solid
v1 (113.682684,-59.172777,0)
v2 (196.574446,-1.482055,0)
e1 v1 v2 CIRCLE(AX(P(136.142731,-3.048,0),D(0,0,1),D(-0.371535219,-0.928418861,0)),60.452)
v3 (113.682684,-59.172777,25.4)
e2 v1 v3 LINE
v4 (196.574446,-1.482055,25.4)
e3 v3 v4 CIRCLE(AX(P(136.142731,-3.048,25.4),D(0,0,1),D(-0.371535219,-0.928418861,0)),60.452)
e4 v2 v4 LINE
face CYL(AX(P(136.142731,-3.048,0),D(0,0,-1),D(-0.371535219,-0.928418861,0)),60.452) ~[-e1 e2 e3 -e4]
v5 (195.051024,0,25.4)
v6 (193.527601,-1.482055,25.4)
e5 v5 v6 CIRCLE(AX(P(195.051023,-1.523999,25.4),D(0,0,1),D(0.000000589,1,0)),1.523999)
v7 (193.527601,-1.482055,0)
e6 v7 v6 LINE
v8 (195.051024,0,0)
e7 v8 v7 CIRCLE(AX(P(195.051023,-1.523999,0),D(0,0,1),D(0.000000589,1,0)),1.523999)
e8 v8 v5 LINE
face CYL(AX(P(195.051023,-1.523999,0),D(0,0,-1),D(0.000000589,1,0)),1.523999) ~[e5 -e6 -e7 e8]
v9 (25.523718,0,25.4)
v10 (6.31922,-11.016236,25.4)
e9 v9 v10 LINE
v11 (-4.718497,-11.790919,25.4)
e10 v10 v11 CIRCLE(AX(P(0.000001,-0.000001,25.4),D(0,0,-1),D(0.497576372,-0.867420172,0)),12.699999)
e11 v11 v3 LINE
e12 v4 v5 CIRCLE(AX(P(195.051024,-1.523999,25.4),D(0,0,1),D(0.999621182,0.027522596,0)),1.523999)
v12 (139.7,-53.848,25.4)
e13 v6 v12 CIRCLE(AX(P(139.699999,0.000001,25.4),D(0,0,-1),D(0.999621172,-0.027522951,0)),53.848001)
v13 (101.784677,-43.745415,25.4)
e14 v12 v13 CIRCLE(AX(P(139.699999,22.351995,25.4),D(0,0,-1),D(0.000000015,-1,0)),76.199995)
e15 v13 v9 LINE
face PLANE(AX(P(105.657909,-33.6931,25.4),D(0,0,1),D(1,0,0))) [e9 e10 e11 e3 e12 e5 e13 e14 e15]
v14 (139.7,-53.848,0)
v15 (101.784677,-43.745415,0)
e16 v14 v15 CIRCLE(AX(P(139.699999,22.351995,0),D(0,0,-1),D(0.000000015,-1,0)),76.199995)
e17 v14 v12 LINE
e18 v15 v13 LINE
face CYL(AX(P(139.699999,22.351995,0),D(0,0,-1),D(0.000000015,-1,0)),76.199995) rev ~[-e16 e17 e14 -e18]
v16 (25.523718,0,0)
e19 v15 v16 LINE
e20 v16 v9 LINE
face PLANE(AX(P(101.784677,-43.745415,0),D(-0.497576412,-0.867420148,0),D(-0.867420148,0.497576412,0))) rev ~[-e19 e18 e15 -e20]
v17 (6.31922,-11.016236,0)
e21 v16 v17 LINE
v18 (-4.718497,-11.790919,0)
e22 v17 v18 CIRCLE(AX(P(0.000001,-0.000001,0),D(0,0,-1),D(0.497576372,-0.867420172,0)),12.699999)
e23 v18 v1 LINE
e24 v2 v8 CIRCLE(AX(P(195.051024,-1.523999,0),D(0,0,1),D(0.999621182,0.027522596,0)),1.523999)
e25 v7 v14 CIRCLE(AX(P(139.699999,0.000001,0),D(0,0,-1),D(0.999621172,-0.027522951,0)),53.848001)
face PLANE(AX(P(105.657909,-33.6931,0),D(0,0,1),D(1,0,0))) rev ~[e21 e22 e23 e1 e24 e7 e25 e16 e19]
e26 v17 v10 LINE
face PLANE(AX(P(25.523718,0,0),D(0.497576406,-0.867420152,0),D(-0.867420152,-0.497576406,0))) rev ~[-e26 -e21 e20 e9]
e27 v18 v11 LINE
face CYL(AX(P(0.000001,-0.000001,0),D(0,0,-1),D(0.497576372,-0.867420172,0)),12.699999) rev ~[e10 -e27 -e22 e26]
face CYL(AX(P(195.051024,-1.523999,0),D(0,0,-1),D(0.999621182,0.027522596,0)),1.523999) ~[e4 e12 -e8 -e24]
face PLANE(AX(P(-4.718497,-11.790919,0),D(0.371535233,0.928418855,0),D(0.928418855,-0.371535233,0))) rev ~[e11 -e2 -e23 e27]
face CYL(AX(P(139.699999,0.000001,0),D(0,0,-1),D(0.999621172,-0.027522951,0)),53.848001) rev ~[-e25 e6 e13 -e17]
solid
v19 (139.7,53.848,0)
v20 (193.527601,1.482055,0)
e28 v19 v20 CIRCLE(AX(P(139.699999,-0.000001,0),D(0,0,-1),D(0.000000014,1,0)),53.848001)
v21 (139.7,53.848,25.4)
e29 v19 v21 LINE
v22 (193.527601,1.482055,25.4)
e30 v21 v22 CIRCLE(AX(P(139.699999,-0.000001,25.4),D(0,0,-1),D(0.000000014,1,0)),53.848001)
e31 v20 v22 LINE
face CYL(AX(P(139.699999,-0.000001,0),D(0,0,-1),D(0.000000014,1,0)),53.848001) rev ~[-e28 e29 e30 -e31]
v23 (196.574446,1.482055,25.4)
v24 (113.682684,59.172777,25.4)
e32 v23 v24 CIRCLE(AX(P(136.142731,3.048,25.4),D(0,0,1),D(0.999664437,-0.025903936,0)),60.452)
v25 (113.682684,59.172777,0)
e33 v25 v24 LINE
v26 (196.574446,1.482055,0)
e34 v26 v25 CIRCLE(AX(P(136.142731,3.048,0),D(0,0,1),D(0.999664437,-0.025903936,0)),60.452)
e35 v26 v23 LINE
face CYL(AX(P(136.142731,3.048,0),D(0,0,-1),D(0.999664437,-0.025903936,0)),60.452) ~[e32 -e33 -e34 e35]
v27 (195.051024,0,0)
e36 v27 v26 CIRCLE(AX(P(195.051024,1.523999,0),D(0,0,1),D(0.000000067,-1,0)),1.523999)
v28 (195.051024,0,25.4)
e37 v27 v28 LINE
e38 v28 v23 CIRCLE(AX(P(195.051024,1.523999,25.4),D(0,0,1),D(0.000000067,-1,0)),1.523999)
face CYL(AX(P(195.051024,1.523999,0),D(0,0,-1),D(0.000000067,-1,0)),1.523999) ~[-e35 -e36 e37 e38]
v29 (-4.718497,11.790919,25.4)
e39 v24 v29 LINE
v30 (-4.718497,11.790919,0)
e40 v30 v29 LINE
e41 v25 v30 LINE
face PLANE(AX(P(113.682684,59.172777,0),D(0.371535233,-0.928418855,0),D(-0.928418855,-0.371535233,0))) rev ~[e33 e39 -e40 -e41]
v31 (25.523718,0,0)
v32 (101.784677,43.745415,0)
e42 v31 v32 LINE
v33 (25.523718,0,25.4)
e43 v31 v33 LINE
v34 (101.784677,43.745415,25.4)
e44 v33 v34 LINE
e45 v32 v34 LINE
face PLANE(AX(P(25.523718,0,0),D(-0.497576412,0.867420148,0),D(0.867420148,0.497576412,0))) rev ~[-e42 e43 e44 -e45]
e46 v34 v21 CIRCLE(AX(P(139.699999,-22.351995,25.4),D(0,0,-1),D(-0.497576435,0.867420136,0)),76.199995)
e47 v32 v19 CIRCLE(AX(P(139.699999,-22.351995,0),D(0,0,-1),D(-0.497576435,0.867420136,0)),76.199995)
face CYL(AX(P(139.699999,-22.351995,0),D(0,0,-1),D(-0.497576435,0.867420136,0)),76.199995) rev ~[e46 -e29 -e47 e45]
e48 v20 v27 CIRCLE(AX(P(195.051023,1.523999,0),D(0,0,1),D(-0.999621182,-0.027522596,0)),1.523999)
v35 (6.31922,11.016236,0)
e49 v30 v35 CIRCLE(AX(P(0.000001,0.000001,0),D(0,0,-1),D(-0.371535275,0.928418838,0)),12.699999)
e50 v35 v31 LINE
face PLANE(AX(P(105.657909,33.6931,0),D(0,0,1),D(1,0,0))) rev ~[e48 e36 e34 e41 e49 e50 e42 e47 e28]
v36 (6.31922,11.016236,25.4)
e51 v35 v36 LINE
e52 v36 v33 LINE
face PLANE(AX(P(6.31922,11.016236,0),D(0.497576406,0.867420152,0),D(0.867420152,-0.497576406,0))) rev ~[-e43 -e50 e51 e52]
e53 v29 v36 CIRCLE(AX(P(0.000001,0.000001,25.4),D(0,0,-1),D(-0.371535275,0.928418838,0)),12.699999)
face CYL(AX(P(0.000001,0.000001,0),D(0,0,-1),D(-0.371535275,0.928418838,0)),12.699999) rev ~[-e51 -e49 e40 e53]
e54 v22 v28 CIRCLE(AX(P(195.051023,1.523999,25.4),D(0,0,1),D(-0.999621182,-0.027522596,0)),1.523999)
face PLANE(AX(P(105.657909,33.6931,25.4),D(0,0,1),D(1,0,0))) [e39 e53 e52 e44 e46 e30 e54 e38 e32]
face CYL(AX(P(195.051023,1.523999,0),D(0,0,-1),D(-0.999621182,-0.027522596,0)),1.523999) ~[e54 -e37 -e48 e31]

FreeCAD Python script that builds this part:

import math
import FreeCAD as App
import Part
import Sketcher
from FreeCAD import Vector
Q = App.Units.Quantity

doc = App.newDocument("Part")
body = doc.addObject("PartDesign::Body", "Body")
body.AllowCompound = True

# Sketch on XY plane
sketch1 = body.newObject("Sketcher::SketchObject", "Sketch")
sketch1.AttachmentSupport = (doc.getObject("XY_Plane"), [""])
sketch1.MapMode = "FlatFace"
sketch1.addGeometry([
    Part.ArcOfCircle(Part.Circle(Vector(0, 0, 0), Vector(0, 0, 1), 12.7), math.radians(60), math.radians(112)),  # 0
    Part.LineSegment(Vector(6.3, 11, 0), Vector(25.5, 0, 0)),  # 1
    Part.LineSegment(Vector(25.5, 0, 0), Vector(101.8, 43.7, 0)),  # 2
    Part.ArcOfCircle(Part.Circle(Vector(139.7, -22.4, 0), Vector(0, 0, 1), 76.2), math.radians(90), math.radians(120)),  # 3
    Part.ArcOfCircle(Part.Circle(Vector(139.7, 0, 0), Vector(0, 0, 1), 53.8), math.radians(2), math.radians(90)),  # 4
    Part.ArcOfCircle(Part.Circle(Vector(195.1, 1.5, 0), Vector(0, 0, 1), 1.5), math.radians(-178), math.radians(-90)),  # 5
    Part.ArcOfCircle(Part.Circle(Vector(195.1, 1.5, 0), Vector(0, 0, 1), 1.5), math.radians(-90), math.radians(-2)),  # 6
    Part.ArcOfCircle(Part.Circle(Vector(136.1, 3, 0), Vector(0, 0, 1), 60.5), math.radians(-1), math.radians(112)),  # 7
    Part.LineSegment(Vector(113.7, 59.2, 0), Vector(-4.7, 11.8, 0)),  # 8
    Part.LineSegment(Vector(25.5, 0, 0), Vector(6.3, -11, 0)),  # 9
    Part.ArcOfCircle(Part.Circle(Vector(0, 0, 0), Vector(0, 0, 1), 12.7), math.radians(-112), math.radians(-60)),  # 10
    Part.LineSegment(Vector(-4.7, -11.8, 0), Vector(113.7, -59.2, 0)),  # 11
    Part.ArcOfCircle(Part.Circle(Vector(136.1, -3, 0), Vector(0, 0, 1), 60.5), math.radians(-112), math.radians(1)),  # 12
    Part.ArcOfCircle(Part.Circle(Vector(195.1, -1.5, 0), Vector(0, 0, 1), 1.5), math.radians(2), math.radians(90)),  # 13
    Part.ArcOfCircle(Part.Circle(Vector(195.1, -1.5, 0), Vector(0, 0, 1), 1.5), math.radians(90), math.radians(178)),  # 14
    Part.ArcOfCircle(Part.Circle(Vector(139.7, 0, 0), Vector(0, 0, 1), 53.8), math.radians(-90), math.radians(-2)),  # 15
    Part.ArcOfCircle(Part.Circle(Vector(139.7, 22.4, 0), Vector(0, 0, 1), 76.2), math.radians(-120), math.radians(-90)),  # 16
    Part.LineSegment(Vector(101.8, -43.7, 0), Vector(25.5, 0, 0)),  # 17
], False)
sketch1.addConstraint([
    Sketcher.Constraint("Tangent", 0, 1, 1, 1),
    Sketcher.Constraint("Coincident", 1, 2, 2, 1),
    Sketcher.Constraint("Tangent", 2, 2, 3, 2),
    Sketcher.Constraint("Tangent", 3, 1, 4, 2),
    Sketcher.Constraint("Tangent", 4, 1, 5, 1),
    Sketcher.Constraint("Tangent", 5, 2, 6, 1),
    Sketcher.Constraint("Coincident", 6, 2, 7, 1),
    Sketcher.Constraint("Tangent", 7, 2, 8, 1),
    Sketcher.Constraint("Tangent", 8, 2, 0, 2),
    Sketcher.Constraint("Tangent", 9, 2, 10, 2),
    Sketcher.Constraint("Tangent", 10, 1, 11, 1),
    Sketcher.Constraint("Tangent", 11, 2, 12, 1),
    Sketcher.Constraint("Coincident", 12, 2, 13, 1),
    Sketcher.Constraint("Tangent", 13, 2, 14, 1),
    Sketcher.Constraint("Tangent", 14, 2, 15, 2),
    Sketcher.Constraint("Tangent", 15, 1, 16, 2),
    Sketcher.Constraint("Tangent", 16, 1, 17, 1),
    Sketcher.Constraint("Coincident", 17, 2, 9, 1),
    Sketcher.Constraint("Coincident", 0, 3, -1, 1),
    Sketcher.Constraint("Coincident", 10, 3, -1, 1),
    Sketcher.Constraint("Coincident", 15, 3, 4, 3),
    Sketcher.Constraint("Coincident", 13, 2, 5, 2),
    Sketcher.Constraint("Coincident", 17, 2, 1, 2),
    Sketcher.Constraint("Equal", 5, 6),
    Sketcher.Constraint("Equal", 0, 10),
    Sketcher.Constraint("Equal", 7, 12),
    Sketcher.Constraint("Equal", 6, 13),
    Sketcher.Constraint("Equal", 13, 14),
    Sketcher.Constraint("Equal", 4, 15),
    Sketcher.Constraint("Equal", 3, 16),
    Sketcher.Constraint("Symmetric", 7, 3, 12, 3, -1),
    Sketcher.Constraint("Symmetric", 5, 3, 13, 3, -1),
    Sketcher.Constraint("Symmetric", 2, 2, 16, 1, -1),
    Sketcher.Constraint("Parallel", 2, 9),
    Sketcher.Constraint("Horizontal", 4, 1, 6, 2),
    Sketcher.Constraint("Vertical", 3, 3, 4, 3),
    Sketcher.Constraint("Vertical", 14, 3, 5, 2),
    Sketcher.Constraint("Radius", 3, Q("2.9999998 in")),
    Sketcher.Constraint("Radius", 0, Q("0.5 in")),
    Sketcher.Constraint("Radius", 4, Q("2.12 in")),
    Sketcher.Constraint("Radius", 5, Q("0.06 in")),
    Sketcher.Constraint("Radius", 7, Q("2.38 in")),
    Sketcher.Constraint("DistanceY", 7, 3, 3, 1, Q("2 in")),
    Sketcher.Constraint("DistanceX", -1, 1, 3, 3, Q("5.5 in")),
])
pad1 = body.newObject("PartDesign::Pad", "Pad")
pad1.Profile = sketch1
pad1.Length = Q("1 in")

doc.recompute()
